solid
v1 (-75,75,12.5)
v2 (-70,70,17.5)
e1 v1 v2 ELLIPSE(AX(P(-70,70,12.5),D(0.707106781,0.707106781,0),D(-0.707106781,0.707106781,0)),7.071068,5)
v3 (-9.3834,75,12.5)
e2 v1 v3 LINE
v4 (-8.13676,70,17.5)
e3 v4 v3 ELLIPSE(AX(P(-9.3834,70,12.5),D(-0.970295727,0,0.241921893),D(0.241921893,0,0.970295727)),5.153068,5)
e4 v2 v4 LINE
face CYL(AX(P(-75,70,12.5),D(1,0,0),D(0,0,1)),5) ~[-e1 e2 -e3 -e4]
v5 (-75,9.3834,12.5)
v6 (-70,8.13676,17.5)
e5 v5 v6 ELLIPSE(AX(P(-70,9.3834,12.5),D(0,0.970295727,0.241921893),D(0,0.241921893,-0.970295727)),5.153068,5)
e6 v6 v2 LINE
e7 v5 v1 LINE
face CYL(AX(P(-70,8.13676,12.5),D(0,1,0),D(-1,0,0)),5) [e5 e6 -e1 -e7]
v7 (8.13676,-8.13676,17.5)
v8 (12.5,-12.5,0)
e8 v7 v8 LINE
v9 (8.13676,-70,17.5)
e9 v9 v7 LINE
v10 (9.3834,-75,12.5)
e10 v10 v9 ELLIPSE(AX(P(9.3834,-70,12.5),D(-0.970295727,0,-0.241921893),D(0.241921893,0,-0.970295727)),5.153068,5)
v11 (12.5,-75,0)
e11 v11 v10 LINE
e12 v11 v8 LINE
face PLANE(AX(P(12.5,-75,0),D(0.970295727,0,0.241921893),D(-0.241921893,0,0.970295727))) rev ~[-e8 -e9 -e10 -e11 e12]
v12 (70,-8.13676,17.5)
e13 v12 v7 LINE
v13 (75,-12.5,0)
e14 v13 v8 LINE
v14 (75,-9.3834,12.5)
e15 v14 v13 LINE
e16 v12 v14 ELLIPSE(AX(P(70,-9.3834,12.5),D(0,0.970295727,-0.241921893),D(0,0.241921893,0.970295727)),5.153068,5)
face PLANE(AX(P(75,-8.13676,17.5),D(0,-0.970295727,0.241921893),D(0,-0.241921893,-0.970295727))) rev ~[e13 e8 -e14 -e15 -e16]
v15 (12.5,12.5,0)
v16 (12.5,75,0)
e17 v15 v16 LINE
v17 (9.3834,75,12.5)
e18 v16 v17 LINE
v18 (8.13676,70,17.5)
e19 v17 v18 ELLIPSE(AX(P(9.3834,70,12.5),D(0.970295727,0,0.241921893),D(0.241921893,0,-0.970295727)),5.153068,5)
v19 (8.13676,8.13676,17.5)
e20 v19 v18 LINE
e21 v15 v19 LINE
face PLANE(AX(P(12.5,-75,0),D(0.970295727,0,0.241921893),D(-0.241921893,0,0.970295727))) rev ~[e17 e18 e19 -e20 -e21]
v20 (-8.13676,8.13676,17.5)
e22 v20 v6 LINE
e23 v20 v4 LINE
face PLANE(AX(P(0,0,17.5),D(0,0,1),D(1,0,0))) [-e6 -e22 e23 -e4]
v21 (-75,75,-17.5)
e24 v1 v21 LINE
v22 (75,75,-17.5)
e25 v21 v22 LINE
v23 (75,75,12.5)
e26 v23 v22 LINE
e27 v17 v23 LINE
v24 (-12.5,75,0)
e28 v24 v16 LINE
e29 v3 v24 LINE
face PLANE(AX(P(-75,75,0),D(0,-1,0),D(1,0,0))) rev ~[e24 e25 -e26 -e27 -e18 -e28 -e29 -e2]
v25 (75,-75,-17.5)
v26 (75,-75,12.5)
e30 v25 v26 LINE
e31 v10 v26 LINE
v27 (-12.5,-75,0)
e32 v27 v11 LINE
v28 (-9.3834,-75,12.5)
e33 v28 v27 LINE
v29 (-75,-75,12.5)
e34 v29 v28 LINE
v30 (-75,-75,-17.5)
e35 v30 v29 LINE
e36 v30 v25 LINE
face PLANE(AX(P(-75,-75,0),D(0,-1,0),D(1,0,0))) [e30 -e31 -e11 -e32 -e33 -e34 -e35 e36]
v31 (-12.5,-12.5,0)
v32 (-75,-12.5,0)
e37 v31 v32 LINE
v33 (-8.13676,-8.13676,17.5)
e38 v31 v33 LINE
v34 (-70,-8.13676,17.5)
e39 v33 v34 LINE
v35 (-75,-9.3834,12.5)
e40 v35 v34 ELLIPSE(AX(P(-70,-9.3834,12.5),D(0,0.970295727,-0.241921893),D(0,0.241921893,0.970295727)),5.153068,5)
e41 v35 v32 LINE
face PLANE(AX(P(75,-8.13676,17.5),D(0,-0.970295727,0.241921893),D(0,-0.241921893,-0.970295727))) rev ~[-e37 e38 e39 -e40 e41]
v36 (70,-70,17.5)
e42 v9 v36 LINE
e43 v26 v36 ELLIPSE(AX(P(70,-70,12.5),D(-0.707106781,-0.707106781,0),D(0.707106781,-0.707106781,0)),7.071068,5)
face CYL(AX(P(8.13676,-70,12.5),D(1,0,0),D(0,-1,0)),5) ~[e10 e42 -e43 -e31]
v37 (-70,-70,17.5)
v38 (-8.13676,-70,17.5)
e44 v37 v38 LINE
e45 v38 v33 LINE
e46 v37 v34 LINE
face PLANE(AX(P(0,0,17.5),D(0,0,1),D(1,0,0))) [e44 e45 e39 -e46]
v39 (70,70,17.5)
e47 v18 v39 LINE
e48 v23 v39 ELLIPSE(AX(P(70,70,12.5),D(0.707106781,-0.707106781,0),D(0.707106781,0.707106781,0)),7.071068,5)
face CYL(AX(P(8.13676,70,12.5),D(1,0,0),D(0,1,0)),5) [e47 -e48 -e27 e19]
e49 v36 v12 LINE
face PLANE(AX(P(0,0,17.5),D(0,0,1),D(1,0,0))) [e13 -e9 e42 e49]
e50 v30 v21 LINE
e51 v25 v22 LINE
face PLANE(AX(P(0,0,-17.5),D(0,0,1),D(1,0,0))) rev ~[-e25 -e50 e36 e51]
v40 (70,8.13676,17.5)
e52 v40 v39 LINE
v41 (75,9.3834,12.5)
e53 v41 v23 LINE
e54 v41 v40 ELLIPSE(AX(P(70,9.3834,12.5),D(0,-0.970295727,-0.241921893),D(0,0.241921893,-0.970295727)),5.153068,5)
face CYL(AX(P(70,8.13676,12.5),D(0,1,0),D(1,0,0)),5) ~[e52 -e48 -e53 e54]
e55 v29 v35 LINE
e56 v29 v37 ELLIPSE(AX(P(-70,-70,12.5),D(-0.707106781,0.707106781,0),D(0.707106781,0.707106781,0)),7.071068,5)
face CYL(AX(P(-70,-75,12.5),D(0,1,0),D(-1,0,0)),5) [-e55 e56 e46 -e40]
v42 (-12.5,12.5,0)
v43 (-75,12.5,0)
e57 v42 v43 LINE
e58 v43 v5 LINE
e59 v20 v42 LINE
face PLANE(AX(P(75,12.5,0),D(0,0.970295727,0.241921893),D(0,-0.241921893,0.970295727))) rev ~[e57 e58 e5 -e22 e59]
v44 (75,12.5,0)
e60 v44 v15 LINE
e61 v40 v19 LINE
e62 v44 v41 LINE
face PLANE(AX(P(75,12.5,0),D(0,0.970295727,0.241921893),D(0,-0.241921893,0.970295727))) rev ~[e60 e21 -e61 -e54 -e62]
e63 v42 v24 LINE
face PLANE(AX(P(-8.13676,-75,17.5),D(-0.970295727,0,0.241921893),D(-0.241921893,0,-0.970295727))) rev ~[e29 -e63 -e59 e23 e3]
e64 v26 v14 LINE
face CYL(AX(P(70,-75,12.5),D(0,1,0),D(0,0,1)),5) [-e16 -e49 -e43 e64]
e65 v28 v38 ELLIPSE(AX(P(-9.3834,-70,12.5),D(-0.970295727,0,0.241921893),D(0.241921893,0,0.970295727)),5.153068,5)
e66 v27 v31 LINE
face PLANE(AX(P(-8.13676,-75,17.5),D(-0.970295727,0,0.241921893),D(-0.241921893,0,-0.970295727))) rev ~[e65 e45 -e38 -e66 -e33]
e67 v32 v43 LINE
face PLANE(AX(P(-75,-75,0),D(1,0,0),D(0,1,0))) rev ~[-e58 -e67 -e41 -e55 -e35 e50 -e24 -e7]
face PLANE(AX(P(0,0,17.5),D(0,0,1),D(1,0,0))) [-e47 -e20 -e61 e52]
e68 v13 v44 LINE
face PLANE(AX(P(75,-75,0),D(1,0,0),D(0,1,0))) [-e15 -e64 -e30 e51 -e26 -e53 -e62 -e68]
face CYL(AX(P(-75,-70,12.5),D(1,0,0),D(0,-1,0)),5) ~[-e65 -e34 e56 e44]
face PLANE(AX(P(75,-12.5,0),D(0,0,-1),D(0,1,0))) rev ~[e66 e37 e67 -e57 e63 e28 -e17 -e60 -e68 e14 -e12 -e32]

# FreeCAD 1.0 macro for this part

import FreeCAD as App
import Part
import Sketcher
Q = App.Units.Quantity


def edges_at(feature, points):
    """Names of the edges that pass closest to the given points."""
    edges = feature.Shape.Edges
    near = lambda p: min(range(len(edges)), key=lambda i: edges[i].distToShape(Part.Vertex(*p))[0])
    return sorted({f"Edge{near(p) + 1}" for p in points})


def add_polygon(sketch, points):
    """Adds a closed chain of lines whose ends are joined by coincident constraints."""
    first, n = sketch.GeometryCount, len(points)
    for a, b in zip(points, points[1:] + points[:1]):
        sketch.addGeometry(Part.LineSegment(App.Vector(*a, 0), App.Vector(*b, 0)), False)
    for i in range(n):
        sketch.addConstraint(Sketcher.Constraint("Coincident", first + i, 2, first + (i + 1) % n, 1))

doc = App.newDocument("Part")
body = doc.addObject("PartDesign::Body", "Body")

sketch1 = body.newObject("Sketcher::SketchObject", "Sketch")
sketch1.AttachmentSupport = (doc.getObject("XY_Plane"), [""])
sketch1.MapMode = "FlatFace"
add_polygon(sketch1, [(-75, 75), (-75, -75), (75, -75), (75, 75)])
sketch1.addConstraint([
    Sketcher.Constraint("Vertical", 0),
    Sketcher.Constraint("Horizontal", 1),
    Sketcher.Constraint("Vertical", 2),
    Sketcher.Constraint("Horizontal", 3),
    Sketcher.Constraint("Symmetric", 0, 2, 2, 2, -1, 1),
    Sketcher.Constraint("Equal", 3, 0),
    Sketcher.Constraint("DistanceX", 1, 1, 1, 2, 150.0),
])
pad1 = body.newObject("PartDesign::Pad", "Pad")
pad1.Profile = sketch1
pad1.Length = 35
pad1.Midplane = True

sketch2 = body.newObject("Sketcher::SketchObject", "Sketch001")
sketch2.AttachmentSupport = (doc.getObject("XZ_Plane"), [""])
sketch2.MapMode = "FlatFace"
sketch2.AttachmentOffset = App.Placement(App.Vector(0, 0, 75), App.Rotation())
add_polygon(sketch2, [(-8.13676, 17.5), (-12.5, 0), (12.5, 0), (8.13676, 17.5)])
sketch2.addConstraint([
    Sketcher.Constraint("Horizontal", 1),
    Sketcher.Constraint("Horizontal", 3),
    Sketcher.Constraint("Symmetric", 0, 2, 1, 2, -1, 1),
    Sketcher.Constraint("Equal", 0, 2),
    Sketcher.Constraint("DistanceX", 1, 1, 1, 2, 25.0),
    Sketcher.Constraint("Angle", 0, Q("-104 deg")),
    Sketcher.Constraint("DistanceY", -1, 1, 2, 2, 17.5),
])
pocket1 = body.newObject("PartDesign::Pocket", "Pocket")
pocket1.Profile = sketch2
pocket1.Type = "ThroughAll"

sketch3 = body.newObject("Sketcher::SketchObject", "Sketch002")
sketch3.AttachmentSupport = (doc.getObject("YZ_Plane"), [""])
sketch3.MapMode = "FlatFace"
sketch3.AttachmentOffset = App.Placement(App.Vector(0, 0, 75), App.Rotation())
add_polygon(sketch3, [(-8.13676, 17.5), (-12.5, 0), (12.5, 0), (8.13676, 17.5)])
sketch3.addConstraint([
    Sketcher.Constraint("Horizontal", 1),
    Sketcher.Constraint("Horizontal", 3),
    Sketcher.Constraint("Symmetric", 0, 2, 1, 2, -1, 1),
    Sketcher.Constraint("Equal", 0, 2),
    Sketcher.Constraint("DistanceX", 1, 1, 1, 2, 25.0),
    Sketcher.Constraint("Angle", 0, Q("-104 deg")),
    Sketcher.Constraint("DistanceY", -1, 1, 2, 2, 17.5),
])
pocket2 = body.newObject("PartDesign::Pocket", "Pocket001")
pocket2.Profile = sketch3
pocket2.Type = "ThroughAll"
doc.recompute()

fillet = body.newObject("PartDesign::Fillet", "Fillet")
fillet.Base = (pocket2, edges_at(pocket2, [
    (-75, 41.568, 17.5),
    (-75, -41.568, 17.5),
    (-41.568, -75, 17.5),
    (41.568, -75, 17.5),
    (75, -41.568, 17.5),
    (75, 41.568, 17.5),
    (41.568, 75, 17.5),
    (-41.568, 75, 17.5),
]))
fillet.Radius = 5

doc.recompute()
